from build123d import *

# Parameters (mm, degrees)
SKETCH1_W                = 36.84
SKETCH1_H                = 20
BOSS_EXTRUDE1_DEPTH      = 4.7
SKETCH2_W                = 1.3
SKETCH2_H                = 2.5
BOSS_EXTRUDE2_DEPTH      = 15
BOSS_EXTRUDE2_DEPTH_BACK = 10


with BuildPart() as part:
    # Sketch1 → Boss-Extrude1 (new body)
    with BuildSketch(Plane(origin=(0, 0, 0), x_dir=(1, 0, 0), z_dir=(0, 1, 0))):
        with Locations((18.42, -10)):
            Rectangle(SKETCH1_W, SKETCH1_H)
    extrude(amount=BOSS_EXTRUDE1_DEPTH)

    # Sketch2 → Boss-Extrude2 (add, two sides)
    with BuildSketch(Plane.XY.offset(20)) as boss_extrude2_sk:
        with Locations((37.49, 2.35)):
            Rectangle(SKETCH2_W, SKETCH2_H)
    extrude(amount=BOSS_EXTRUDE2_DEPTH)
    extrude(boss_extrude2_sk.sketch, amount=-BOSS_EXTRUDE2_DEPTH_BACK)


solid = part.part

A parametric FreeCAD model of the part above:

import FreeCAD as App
import Part
import Sketcher
from FreeCAD import Vector


def add_polygon(sketch, points):
    """Adds a closed chain of lines whose ends are joined by coincident constraints."""
    first, n = sketch.GeometryCount, len(points)
    for a, b in zip(points, points[1:] + points[:1]):
        sketch.addGeometry(Part.LineSegment(App.Vector(*a, 0), App.Vector(*b, 0)), False)
    for i in range(n):
        sketch.addConstraint(Sketcher.Constraint("Coincident", first + i, 2, first + (i + 1) % n, 1))

doc = App.newDocument("Part")
body = doc.addObject("PartDesign::Body", "Body")

# Sketch on XZ plane
sketch1 = doc.addObject("Sketcher::SketchObject", "Sketch")
body.addObject(sketch1)
sketch1.AttachmentSupport = (doc.XZ_Plane, [""])
sketch1.MapMode = "FlatFace"
add_polygon(sketch1, [(0, 0), (0, 20), (36.84, 20), (36.84, 0)])  # lines 0-3
sketch1.addConstraint([
    Sketcher.Constraint("Vertical", 0),
    Sketcher.Constraint("Horizontal", 1),
    Sketcher.Constraint("Vertical", 2),
    Sketcher.Constraint("Horizontal", 3),
    Sketcher.Constraint("Coincident", 3, 2, -1, 1),
    Sketcher.Constraint("DistanceY", 0, 1, 0, 2, 20.0),
    Sketcher.Constraint("DistanceX", 1, 1, 1, 2, 36.84),
])
pad1 = doc.addObject("PartDesign::Pad", "Pad")
body.addObject(pad1)
pad1.Profile = sketch1
pad1.Length = 4.7
pad1.Reversed = True

# Sketch on XY plane
sketch2 = doc.addObject("Sketcher::SketchObject", "Sketch001")
body.addObject(sketch2)
sketch2.AttachmentSupport = (doc.XY_Plane, [""])
sketch2.MapMode = "FlatFace"
sketch2.AttachmentOffset = App.Placement(Vector(0, 0, 20), App.Rotation())
add_polygon(sketch2, [(36.84, 3.6), (36.84, 1.1), (38.14, 1.1), (38.14, 3.6)])  # lines 0-3
sketch2.addConstraint([
    Sketcher.Constraint("Vertical", 0),
    Sketcher.Constraint("Horizontal", 1),
    Sketcher.Constraint("Vertical", 2),
    Sketcher.Constraint("Horizontal", 3),
    Sketcher.Constraint("DistanceX", 1, 1, 1, 2, 1.3),
    Sketcher.Constraint("DistanceY", 0, 2, 0, 1, 2.5),
    Sketcher.Constraint("DistanceY", -1, 1, 0, 2, 1.1),
    Sketcher.Constraint("DistanceX", -1, 1, 0, 2, 36.84),
])
pad2 = doc.addObject("PartDesign::Pad", "Pad001")
body.addObject(pad2)
pad2.Profile = sketch2
pad2.Type = "TwoLengths"
pad2.Length = 15
pad2.Length2 = 10

doc.recompute()
